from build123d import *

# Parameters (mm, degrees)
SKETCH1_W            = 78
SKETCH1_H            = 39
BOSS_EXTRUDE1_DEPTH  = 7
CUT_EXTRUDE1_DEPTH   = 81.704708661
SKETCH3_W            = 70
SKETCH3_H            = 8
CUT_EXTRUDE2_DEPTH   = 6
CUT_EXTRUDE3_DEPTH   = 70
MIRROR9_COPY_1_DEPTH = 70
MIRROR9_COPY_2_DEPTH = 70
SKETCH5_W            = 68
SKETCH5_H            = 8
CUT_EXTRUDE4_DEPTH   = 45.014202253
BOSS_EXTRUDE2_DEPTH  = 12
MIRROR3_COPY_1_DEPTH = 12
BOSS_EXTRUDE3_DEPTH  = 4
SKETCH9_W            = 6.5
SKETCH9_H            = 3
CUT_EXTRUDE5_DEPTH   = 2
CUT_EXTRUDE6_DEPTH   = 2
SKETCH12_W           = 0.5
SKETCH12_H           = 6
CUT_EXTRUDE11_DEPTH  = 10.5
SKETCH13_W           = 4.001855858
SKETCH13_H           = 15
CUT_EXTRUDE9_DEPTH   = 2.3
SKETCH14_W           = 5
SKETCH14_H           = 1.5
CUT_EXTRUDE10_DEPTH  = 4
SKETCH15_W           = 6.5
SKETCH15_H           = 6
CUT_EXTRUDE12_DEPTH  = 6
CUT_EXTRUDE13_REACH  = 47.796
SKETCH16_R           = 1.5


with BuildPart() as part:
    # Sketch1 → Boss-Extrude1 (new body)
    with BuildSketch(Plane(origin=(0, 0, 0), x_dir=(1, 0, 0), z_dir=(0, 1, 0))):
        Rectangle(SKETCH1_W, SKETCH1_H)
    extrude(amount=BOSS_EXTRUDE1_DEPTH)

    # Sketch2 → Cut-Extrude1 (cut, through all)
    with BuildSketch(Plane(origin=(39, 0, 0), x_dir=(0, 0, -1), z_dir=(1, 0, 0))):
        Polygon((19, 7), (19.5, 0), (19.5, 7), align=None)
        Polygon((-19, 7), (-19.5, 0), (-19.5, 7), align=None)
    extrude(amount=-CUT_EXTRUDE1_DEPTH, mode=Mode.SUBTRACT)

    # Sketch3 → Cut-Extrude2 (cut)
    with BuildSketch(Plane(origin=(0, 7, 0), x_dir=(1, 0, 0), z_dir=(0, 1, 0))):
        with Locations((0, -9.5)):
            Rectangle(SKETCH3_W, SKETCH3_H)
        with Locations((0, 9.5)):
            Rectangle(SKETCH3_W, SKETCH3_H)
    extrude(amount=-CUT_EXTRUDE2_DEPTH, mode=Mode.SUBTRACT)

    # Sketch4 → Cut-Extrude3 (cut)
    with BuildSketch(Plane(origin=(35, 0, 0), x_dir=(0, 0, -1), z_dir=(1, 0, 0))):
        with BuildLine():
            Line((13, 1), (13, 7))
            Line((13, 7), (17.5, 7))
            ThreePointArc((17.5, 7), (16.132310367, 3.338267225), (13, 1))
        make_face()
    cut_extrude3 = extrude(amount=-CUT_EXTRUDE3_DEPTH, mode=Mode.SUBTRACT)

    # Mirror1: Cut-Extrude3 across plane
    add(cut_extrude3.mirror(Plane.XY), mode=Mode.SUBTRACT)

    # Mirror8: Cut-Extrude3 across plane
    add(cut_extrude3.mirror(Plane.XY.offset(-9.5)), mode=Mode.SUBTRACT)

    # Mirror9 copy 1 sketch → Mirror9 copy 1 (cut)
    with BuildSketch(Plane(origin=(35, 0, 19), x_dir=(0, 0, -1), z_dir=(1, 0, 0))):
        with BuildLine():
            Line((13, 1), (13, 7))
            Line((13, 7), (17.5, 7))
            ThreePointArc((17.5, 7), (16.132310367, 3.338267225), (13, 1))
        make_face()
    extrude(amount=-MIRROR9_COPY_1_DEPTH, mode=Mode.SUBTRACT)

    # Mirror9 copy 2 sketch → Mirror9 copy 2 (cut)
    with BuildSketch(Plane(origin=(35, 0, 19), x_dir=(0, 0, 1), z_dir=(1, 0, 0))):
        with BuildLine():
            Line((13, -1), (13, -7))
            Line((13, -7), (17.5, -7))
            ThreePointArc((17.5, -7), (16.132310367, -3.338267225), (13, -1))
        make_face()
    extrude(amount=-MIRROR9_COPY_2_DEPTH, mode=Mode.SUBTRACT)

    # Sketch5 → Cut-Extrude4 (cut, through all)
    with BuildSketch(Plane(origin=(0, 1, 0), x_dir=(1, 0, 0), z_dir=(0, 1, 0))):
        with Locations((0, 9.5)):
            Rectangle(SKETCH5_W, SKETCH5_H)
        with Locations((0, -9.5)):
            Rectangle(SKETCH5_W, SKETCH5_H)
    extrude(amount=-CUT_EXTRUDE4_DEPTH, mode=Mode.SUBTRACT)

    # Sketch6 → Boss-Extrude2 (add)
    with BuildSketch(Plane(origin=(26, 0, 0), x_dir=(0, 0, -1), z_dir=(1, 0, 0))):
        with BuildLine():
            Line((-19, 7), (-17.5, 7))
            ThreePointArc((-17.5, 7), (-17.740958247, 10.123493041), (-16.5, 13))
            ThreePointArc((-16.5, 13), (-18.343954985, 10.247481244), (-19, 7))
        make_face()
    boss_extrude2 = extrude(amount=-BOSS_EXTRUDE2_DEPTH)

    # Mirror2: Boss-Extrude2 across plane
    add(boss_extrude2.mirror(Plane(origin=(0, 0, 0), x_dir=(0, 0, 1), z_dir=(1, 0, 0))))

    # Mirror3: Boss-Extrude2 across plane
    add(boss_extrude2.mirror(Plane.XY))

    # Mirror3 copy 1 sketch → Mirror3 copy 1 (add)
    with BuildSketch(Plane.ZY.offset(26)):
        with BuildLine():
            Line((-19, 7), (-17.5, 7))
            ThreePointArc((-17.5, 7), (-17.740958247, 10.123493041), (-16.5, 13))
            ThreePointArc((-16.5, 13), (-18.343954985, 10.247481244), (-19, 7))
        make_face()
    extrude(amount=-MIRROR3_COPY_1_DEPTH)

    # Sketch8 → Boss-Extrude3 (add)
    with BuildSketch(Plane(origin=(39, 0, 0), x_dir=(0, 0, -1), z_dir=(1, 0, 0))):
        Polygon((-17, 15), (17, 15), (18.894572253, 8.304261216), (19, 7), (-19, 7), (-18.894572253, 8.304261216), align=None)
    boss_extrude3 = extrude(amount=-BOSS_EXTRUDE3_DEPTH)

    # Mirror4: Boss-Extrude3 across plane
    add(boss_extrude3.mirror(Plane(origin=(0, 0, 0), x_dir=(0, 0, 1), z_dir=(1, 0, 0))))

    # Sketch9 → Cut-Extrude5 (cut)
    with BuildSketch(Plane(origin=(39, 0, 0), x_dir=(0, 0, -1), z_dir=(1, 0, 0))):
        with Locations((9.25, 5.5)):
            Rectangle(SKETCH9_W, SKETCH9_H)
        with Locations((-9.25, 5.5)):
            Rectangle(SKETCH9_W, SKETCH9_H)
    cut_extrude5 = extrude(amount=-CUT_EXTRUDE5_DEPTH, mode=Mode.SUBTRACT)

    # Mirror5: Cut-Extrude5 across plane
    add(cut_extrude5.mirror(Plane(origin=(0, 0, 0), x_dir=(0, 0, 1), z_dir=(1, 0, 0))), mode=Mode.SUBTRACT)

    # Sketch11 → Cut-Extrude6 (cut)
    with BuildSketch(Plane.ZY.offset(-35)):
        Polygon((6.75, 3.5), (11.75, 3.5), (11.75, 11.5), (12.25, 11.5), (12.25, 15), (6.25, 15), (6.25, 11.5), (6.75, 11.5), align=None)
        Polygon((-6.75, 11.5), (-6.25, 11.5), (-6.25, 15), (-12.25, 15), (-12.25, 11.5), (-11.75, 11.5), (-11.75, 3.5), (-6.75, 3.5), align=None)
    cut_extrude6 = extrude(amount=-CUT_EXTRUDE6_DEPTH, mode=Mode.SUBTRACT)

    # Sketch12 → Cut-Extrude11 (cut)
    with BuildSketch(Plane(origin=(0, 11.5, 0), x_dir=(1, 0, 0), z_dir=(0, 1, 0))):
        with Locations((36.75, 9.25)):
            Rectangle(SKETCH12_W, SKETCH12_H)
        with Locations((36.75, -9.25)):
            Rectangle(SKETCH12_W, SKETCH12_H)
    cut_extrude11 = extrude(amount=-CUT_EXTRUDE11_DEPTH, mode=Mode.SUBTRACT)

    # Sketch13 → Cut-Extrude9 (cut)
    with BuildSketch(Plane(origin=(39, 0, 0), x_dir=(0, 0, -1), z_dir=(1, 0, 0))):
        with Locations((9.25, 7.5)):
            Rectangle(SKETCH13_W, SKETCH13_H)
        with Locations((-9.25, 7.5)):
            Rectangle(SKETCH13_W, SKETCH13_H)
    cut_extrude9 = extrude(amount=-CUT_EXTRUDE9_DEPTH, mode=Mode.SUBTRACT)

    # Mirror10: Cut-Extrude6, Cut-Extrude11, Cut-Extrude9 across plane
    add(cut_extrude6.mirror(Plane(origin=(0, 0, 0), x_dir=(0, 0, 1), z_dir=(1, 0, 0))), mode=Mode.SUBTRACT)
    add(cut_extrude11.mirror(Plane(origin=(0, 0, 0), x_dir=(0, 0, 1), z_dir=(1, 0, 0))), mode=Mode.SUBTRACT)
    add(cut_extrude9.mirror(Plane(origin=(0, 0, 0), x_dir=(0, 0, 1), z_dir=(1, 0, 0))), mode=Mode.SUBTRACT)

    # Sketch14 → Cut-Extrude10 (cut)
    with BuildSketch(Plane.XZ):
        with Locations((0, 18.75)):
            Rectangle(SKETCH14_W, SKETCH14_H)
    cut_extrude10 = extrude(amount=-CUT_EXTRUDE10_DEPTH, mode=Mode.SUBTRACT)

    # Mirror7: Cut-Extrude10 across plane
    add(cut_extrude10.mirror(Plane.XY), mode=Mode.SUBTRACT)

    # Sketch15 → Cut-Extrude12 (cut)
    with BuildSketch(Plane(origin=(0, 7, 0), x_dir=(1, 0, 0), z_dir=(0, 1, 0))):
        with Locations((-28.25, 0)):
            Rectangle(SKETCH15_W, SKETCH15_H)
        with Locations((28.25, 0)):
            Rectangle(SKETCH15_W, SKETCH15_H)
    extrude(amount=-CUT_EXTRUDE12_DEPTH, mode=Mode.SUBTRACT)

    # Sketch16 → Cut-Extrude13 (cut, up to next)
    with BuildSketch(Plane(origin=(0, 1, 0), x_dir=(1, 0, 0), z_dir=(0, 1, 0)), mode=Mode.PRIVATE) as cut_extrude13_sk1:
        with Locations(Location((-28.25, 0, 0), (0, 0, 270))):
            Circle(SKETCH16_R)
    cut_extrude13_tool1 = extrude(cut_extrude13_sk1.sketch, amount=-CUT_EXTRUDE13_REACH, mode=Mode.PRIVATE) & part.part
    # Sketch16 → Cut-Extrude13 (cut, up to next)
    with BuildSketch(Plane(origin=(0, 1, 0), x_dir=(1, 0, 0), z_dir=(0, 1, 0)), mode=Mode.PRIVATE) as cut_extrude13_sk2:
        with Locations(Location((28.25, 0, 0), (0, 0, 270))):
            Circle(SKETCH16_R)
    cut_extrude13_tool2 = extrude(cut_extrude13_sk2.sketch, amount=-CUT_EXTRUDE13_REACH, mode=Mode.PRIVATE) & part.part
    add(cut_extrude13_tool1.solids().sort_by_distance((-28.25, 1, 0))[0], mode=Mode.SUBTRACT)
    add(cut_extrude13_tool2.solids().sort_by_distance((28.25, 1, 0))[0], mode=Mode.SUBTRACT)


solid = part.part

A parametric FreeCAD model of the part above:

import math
import FreeCAD as App
import Part
import Sketcher
from FreeCAD import Vector


def add_polygon(sketch, points):
    """Adds a closed chain of lines whose ends are joined by coincident constraints."""
    first, n = sketch.GeometryCount, len(points)
    for a, b in zip(points, points[1:] + points[:1]):
        sketch.addGeometry(Part.LineSegment(App.Vector(*a, 0), App.Vector(*b, 0)), False)
    for i in range(n):
        sketch.addConstraint(Sketcher.Constraint("Coincident", first + i, 2, first + (i + 1) % n, 1))

doc = App.newDocument("Part")
body = doc.addObject("PartDesign::Body", "Body")

# Sketch on XZ plane
sketch1 = body.newObject("Sketcher::SketchObject", "Sketch")
sketch1.AttachmentSupport = (doc.getObject("XZ_Plane"), [""])
sketch1.MapMode = "FlatFace"
add_polygon(sketch1, [(-39, -20), (-39, 20), (39, 20), (39, -20)])  # lines 0-3
sketch1.addConstraint([
    Sketcher.Constraint("Vertical", 0),
    Sketcher.Constraint("Horizontal", 1),
    Sketcher.Constraint("Vertical", 2),
    Sketcher.Constraint("Horizontal", 3),
    Sketcher.Constraint("Symmetric", 0, 2, 2, 2, -1, 1),
    Sketcher.Constraint("DistanceX", 1, 1, 1, 2, 78.0),
    Sketcher.Constraint("DistanceY", 0, 1, 0, 2, 39.0),
])
pad1 = body.newObject("PartDesign::Pad", "Pad")
pad1.Profile = sketch1
pad1.Length = 7
pad1.Reversed = True

# Sketch on YZ plane
sketch2 = body.newObject("Sketcher::SketchObject", "Sketch001")
sketch2.AttachmentSupport = (doc.getObject("YZ_Plane"), [""])
sketch2.MapMode = "FlatFace"
sketch2.AttachmentOffset = App.Placement(Vector(0, 0, 39), App.Rotation())
add_polygon(sketch2, [(7, -19), (0, -19.5), (7, -19.5)])  # lines 0-2
add_polygon(sketch2, [(0, 19.5), (7, 19), (7, 19.5)])  # lines 3-5
sketch2.addConstraint([
    Sketcher.Constraint("Horizontal", 1),
    Sketcher.Constraint("Vertical", 2),
    Sketcher.Constraint("Vertical", 4),
    Sketcher.Constraint("Horizontal", 5),
    Sketcher.Constraint("Symmetric", 0, 2, 5, 2, -1, 1),
    Sketcher.Constraint("Symmetric", 2, 2, 3, 2, -1),
    Sketcher.Constraint("PointOnObject", 0, 2, -2),
    Sketcher.Constraint("DistanceX", 1, 1, 1, 2, 7.0),
    Sketcher.Constraint("DistanceY", 2, 1, 2, 2, 0.5),
    Sketcher.Constraint("DistanceY", 2, 2, -1, 1, 19.0),
])
pocket1 = body.newObject("PartDesign::Pocket", "Pocket")
pocket1.Profile = sketch2
pocket1.Type = "ThroughAll"

# Sketch on XZ plane
sketch3 = body.newObject("Sketcher::SketchObject", "Sketch002")
sketch3.AttachmentSupport = (doc.getObject("XZ_Plane"), [""])
sketch3.MapMode = "FlatFace"
sketch3.AttachmentOffset = App.Placement(Vector(0, 0, -7), App.Rotation())
add_polygon(sketch3, [(-35, 6), (-35, 14), (35, 14), (35, 6)])  # lines 0-3
add_polygon(sketch3, [(-35, -14), (-35, -6), (35, -6), (35, -14)])  # lines 4-7
sketch3.addConstraint([
    Sketcher.Constraint("Vertical", 0),
    Sketcher.Constraint("Horizontal", 1),
    Sketcher.Constraint("Vertical", 2),
    Sketcher.Constraint("Horizontal", 3),
    Sketcher.Constraint("Vertical", 4),
    Sketcher.Constraint("Horizontal", 5),
    Sketcher.Constraint("Vertical", 6),
    Sketcher.Constraint("Horizontal", 7),
    Sketcher.Constraint("Symmetric", 2, 2, 4, 2, -1, 1),
    Sketcher.Constraint("Symmetric", 0, 2, 6, 2, -1, 1),
    Sketcher.Constraint("Vertical", 3, 2, 4, 2),
    Sketcher.Constraint("DistanceX", 1, 1, 1, 2, 70.0),
    Sketcher.Constraint("DistanceY", 0, 1, 0, 2, 8.0),
    Sketcher.Constraint("DistanceY", 4, 2, 3, 2, 11.0),
])
pocket2 = body.newObject("PartDesign::Pocket", "Pocket001")
pocket2.Profile = sketch3
pocket2.Length = 6
pocket2.Reversed = True

# Sketch on YZ plane
sketch4 = body.newObject("Sketcher::SketchObject", "Sketch003")
sketch4.AttachmentSupport = (doc.getObject("YZ_Plane"), [""])
sketch4.MapMode = "FlatFace"
sketch4.AttachmentOffset = App.Placement(Vector(0, 0, 35), App.Rotation())
sketch4.addGeometry([
    Part.LineSegment(Vector(7, -13, 0), Vector(1, -13, 0)),
    Part.ArcOfCircle(Part.Circle(Vector(7.5, -10.6, 0), Vector(0, 0, 1), 6.9), math.radians(-160), math.radians(-94)),
    Part.LineSegment(Vector(7, -17.5, 0), Vector(7, -13, 0)),
], False)
sketch4.addConstraint([
    Sketcher.Constraint("Coincident", 0, 2, 1, 1),
    Sketcher.Constraint("Coincident", 1, 2, 2, 1),
    Sketcher.Constraint("Coincident", 2, 2, 0, 1),
    Sketcher.Constraint("Horizontal", 0),
    Sketcher.Constraint("Vertical", 2),
    Sketcher.Constraint("DistanceX", 0, 2, 0, 1, 6.0),
    Sketcher.Constraint("DistanceY", 2, 1, 2, 2, 4.5),
    Sketcher.Constraint("DistanceX", -1, 1, 0, 2, 1.0),
    Sketcher.Constraint("DistanceY", 0, 2, -1, 1, 13.0),
    Sketcher.Constraint("Radius", 1, 6.926752),
])
pocket3 = body.newObject("PartDesign::Pocket", "Pocket002")
pocket3.Profile = sketch4
pocket3.Length = 70
doc.recompute()

mirrored = body.newObject("PartDesign::Mirrored", "Mirrored")
mirrored.Originals = [pocket3]
mirrored.MirrorPlane = (doc.getObject("XY_Plane"), [""])
body.Tip = mirrored
doc.recompute()

datumplane = body.newObject("PartDesign::Plane", "DatumPlane")
datumplane.AttachmentSupport = (doc.getObject("XY_Plane"), [""])
datumplane.MapMode = "FlatFace"
datumplane.AttachmentOffset = App.Placement(Vector(0, 0, -9.5), App.Rotation())
mirrored2 = body.newObject("PartDesign::Mirrored", "Mirrored001")
mirrored2.Originals = [pocket3]
mirrored2.MirrorPlane = (datumplane, [""])
body.Tip = mirrored2

# Sketch on YZ plane
sketch5 = body.newObject("Sketcher::SketchObject", "Sketch004")
sketch5.AttachmentSupport = (doc.getObject("YZ_Plane"), [""])
sketch5.MapMode = "FlatFace"
sketch5.AttachmentOffset = App.Placement(Vector(0, 0, 35), App.Rotation())
sketch5.addGeometry([
    Part.LineSegment(Vector(7, 6, 0), Vector(1, 6, 0)),
    Part.ArcOfCircle(Part.Circle(Vector(7.5, 8.4, 0), Vector(0, 0, 1), 6.9), math.radians(-160), math.radians(-94)),
    Part.LineSegment(Vector(7, 1.5, 0), Vector(7, 6, 0)),
], False)
sketch5.addConstraint([
    Sketcher.Constraint("Coincident", 0, 2, 1, 1),
    Sketcher.Constraint("Coincident", 1, 2, 2, 1),
    Sketcher.Constraint("Coincident", 2, 2, 0, 1),
    Sketcher.Constraint("Horizontal", 0),
    Sketcher.Constraint("Vertical", 2),
    Sketcher.Constraint("DistanceX", 0, 2, 0, 1, 6.0),
    Sketcher.Constraint("DistanceY", 2, 1, 2, 2, 4.5),
    Sketcher.Constraint("DistanceX", -1, 1, 0, 2, 1.0),
    Sketcher.Constraint("DistanceY", -1, 1, 0, 2, 6.0),
    Sketcher.Constraint("Radius", 1, 6.926752),
])
pocket4 = body.newObject("PartDesign::Pocket", "Pocket003")
pocket4.Profile = sketch5
pocket4.Length = 70

# Sketch on YZ plane
sketch6 = body.newObject("Sketcher::SketchObject", "Sketch005")
sketch6.AttachmentSupport = (doc.getObject("YZ_Plane"), [""])
sketch6.MapMode = "FlatFace"
sketch6.AttachmentOffset = App.Placement(Vector(0, 0, 35), App.Rotation())
sketch6.addGeometry([
    Part.LineSegment(Vector(1, 32, 0), Vector(7, 32, 0)),
    Part.LineSegment(Vector(7, 32, 0), Vector(7, 36.5, 0)),
    Part.ArcOfCircle(Part.Circle(Vector(7.5, 29.6, 0), Vector(0, 0, 1), 6.9), math.radians(94), math.radians(160)),
], False)
sketch6.addConstraint([
    Sketcher.Constraint("Coincident", 0, 2, 1, 1),
    Sketcher.Constraint("Coincident", 1, 2, 2, 1),
    Sketcher.Constraint("Coincident", 2, 2, 0, 1),
    Sketcher.Constraint("Horizontal", 0),
    Sketcher.Constraint("Vertical", 1),
    Sketcher.Constraint("DistanceX", 0, 1, 0, 2, 6.0),
    Sketcher.Constraint("DistanceY", 1, 1, 1, 2, 4.5),
    Sketcher.Constraint("DistanceX", -1, 1, 0, 2, 7.0),
    Sketcher.Constraint("DistanceY", -1, 1, 0, 2, 32.0),
    Sketcher.Constraint("Radius", 2, 6.926752),
])
pocket5 = body.newObject("PartDesign::Pocket", "Pocket004")
pocket5.Profile = sketch6
pocket5.Length = 70

# Sketch on XZ plane
sketch7 = body.newObject("Sketcher::SketchObject", "Sketch006")
sketch7.AttachmentSupport = (doc.getObject("XZ_Plane"), [""])
sketch7.MapMode = "FlatFace"
sketch7.AttachmentOffset = App.Placement(Vector(0, 0, -1), App.Rotation())
add_polygon(sketch7, [(-34, -14), (-34, -6), (34, -6), (34, -14)])  # lines 0-3
add_polygon(sketch7, [(-34, 6), (-34, 14), (34, 14), (34, 6)])  # lines 4-7
sketch7.addConstraint([
    Sketcher.Constraint("Vertical", 0),
    Sketcher.Constraint("Horizontal", 1),
    Sketcher.Constraint("Vertical", 2),
    Sketcher.Constraint("Horizontal", 3),
    Sketcher.Constraint("Vertical", 4),
    Sketcher.Constraint("Horizontal", 5),
    Sketcher.Constraint("Vertical", 6),
    Sketcher.Constraint("Horizontal", 7),
    Sketcher.Constraint("Symmetric", 2, 2, 4, 2, -1, 1),
    Sketcher.Constraint("Symmetric", 0, 2, 6, 2, -1, 1),
    Sketcher.Constraint("Vertical", 3, 2, 4, 2),
    Sketcher.Constraint("DistanceX", 1, 1, 1, 2, 68.0),
    Sketcher.Constraint("DistanceY", 0, 1, 0, 2, 8.0),
    Sketcher.Constraint("DistanceY", 0, 2, 4, 2, 19.0),
])
pocket6 = body.newObject("PartDesign::Pocket", "Pocket005")
pocket6.Profile = sketch7
pocket6.Type = "ThroughAll"
pocket6.Reversed = True

# Sketch on YZ plane
sketch8 = body.newObject("Sketcher::SketchObject", "Sketch007")
sketch8.AttachmentSupport = (doc.getObject("YZ_Plane"), [""])
sketch8.MapMode = "FlatFace"
sketch8.AttachmentOffset = App.Placement(Vector(0, 0, 26), App.Rotation())
sketch8.addGeometry([
    Part.LineSegment(Vector(7, 19, 0), Vector(7, 17.5, 0)),
    Part.ArcOfCircle(Part.Circle(Vector(9, 11.3, 0), Vector(0, 0, 1), 6.5), math.radians(53), math.radians(108)),
    Part.ArcOfCircle(Part.Circle(Vector(7, 10.5, 0), Vector(0, 0, 1), 8.5), math.radians(45), math.radians(90)),
], False)
sketch8.addConstraint([
    Sketcher.Constraint("Coincident", 0, 2, 1, 2),
    Sketcher.Constraint("Coincident", 1, 1, 2, 1),
    Sketcher.Constraint("Coincident", 2, 2, 0, 1),
    Sketcher.Constraint("Vertical", 0),
    Sketcher.Constraint("DistanceY", 0, 2, 0, 1, 1.5),
    Sketcher.Constraint("DistanceX", -1, 1, 0, 2, 7.0),
    Sketcher.Constraint("DistanceX", -1, 1, 1, 1, 13.0),
    Sketcher.Constraint("DistanceY", -1, 1, 2, 2, 19.0),
    Sketcher.Constraint("DistanceY", 1, 1, 0, 2, 1.0),
    Sketcher.Constraint("Radius", 1, 6.532579),
    Sketcher.Constraint("Radius", 2, 8.529418),
])
pad2 = body.newObject("PartDesign::Pad", "Pad001")
pad2.Profile = sketch8
pad2.Length = 12
pad2.Reversed = True
doc.recompute()

mirrored3 = body.newObject("PartDesign::Mirrored", "Mirrored002")
mirrored3.Originals = [pad2]
mirrored3.MirrorPlane = (doc.getObject("YZ_Plane"), [""])
body.Tip = mirrored3
doc.recompute()

mirrored4 = body.newObject("PartDesign::Mirrored", "Mirrored003")
mirrored4.Originals = [pad2]
mirrored4.MirrorPlane = (doc.getObject("XY_Plane"), [""])
body.Tip = mirrored4

# Sketch on YZ plane
sketch9 = body.newObject("Sketcher::SketchObject", "Sketch008")
sketch9.AttachmentSupport = (doc.getObject("YZ_Plane"), [""])
sketch9.MapMode = "FlatFace"
sketch9.AttachmentOffset = App.Placement(Vector(0, 0, -26), App.Rotation())
sketch9.addGeometry([
    Part.LineSegment(Vector(7, -19, 0), Vector(7, -17.5, 0)),
    Part.ArcOfCircle(Part.Circle(Vector(9, -11.3, 0), Vector(0, 0, 1), 6.5), math.radians(-108), math.radians(-53)),
    Part.ArcOfCircle(Part.Circle(Vector(7, -10.5, 0), Vector(0, 0, 1), 8.5), math.radians(-90), math.radians(-45)),
], False)
sketch9.addConstraint([
    Sketcher.Constraint("Coincident", 0, 2, 1, 1),
    Sketcher.Constraint("Coincident", 1, 2, 2, 2),
    Sketcher.Constraint("Coincident", 2, 1, 0, 1),
    Sketcher.Constraint("Vertical", 0),
    Sketcher.Constraint("DistanceY", 0, 1, 0, 2, 1.5),
    Sketcher.Constraint("DistanceX", -1, 1, 0, 2, 7.0),
    Sketcher.Constraint("DistanceX", -1, 1, 1, 2, 13.0),
    Sketcher.Constraint("DistanceY", 2, 1, -1, 1, 19.0),
    Sketcher.Constraint("DistanceY", 0, 2, 1, 2, 1.0),
    Sketcher.Constraint("Radius", 1, 6.532579),
    Sketcher.Constraint("Radius", 2, 8.529418),
])
pad3 = body.newObject("PartDesign::Pad", "Pad002")
pad3.Profile = sketch9
pad3.Length = 12

# Sketch on YZ plane
sketch10 = body.newObject("Sketcher::SketchObject", "Sketch009")
sketch10.AttachmentSupport = (doc.getObject("YZ_Plane"), [""])
sketch10.MapMode = "FlatFace"
sketch10.AttachmentOffset = App.Placement(Vector(0, 0, 39), App.Rotation())
add_polygon(sketch10, [(15, -17), (15, 17), (8.3, 18.9), (7, 19), (7, -19), (8.3, -18.9)])  # lines 0-5
sketch10.addConstraint([
    Sketcher.Constraint("Vertical", 0),
    Sketcher.Constraint("Vertical", 3),
    Sketcher.Constraint("Symmetric", 1, 2, 4, 2, -1),
    Sketcher.Constraint("Equal", 2, 4),
    Sketcher.Constraint("Equal", 1, 5),
    Sketcher.Constraint("DistanceY", 0, 1, 0, 2, 34.0),
    Sketcher.Constraint("DistanceY", 3, 2, 3, 1, 38.0),
    Sketcher.Constraint("DistanceX", -1, 1, 0, 2, 15.0),
    Sketcher.Constraint("DistanceX", -1, 1, 2, 2, 7.0),
    Sketcher.Constraint("DistanceX", -1, 1, 1, 2, 8.304261),
    Sketcher.Constraint("Distance", 1, 6.958615),
])
pad4 = body.newObject("PartDesign::Pad", "Pad003")
pad4.Profile = sketch10
pad4.Length = 4
pad4.Reversed = True
doc.recompute()

mirrored5 = body.newObject("PartDesign::Mirrored", "Mirrored004")
mirrored5.Originals = [pad4]
mirrored5.MirrorPlane = (doc.getObject("YZ_Plane"), [""])
body.Tip = mirrored5

# Sketch on YZ plane
sketch11 = body.newObject("Sketcher::SketchObject", "Sketch010")
sketch11.AttachmentSupport = (doc.getObject("YZ_Plane"), [""])
sketch11.MapMode = "FlatFace"
sketch11.AttachmentOffset = App.Placement(Vector(0, 0, 39), App.Rotation())
add_polygon(sketch11, [(7, -6), (4, -6), (4, -12.5), (7, -12.5)])  # lines 0-3
add_polygon(sketch11, [(7, 12.5), (4, 12.5), (4, 6), (7, 6)])  # lines 4-7
sketch11.addConstraint([
    Sketcher.Constraint("Horizontal", 0),
    Sketcher.Constraint("Vertical", 1),
    Sketcher.Constraint("Horizontal", 2),
    Sketcher.Constraint("Vertical", 3),
    Sketcher.Constraint("Horizontal", 4),
    Sketcher.Constraint("Vertical", 5),
    Sketcher.Constraint("Horizontal", 6),
    Sketcher.Constraint("Vertical", 7),
    Sketcher.Constraint("Symmetric", 1, 2, 4, 2, -1),
    Sketcher.Constraint("Symmetric", 3, 2, 6, 2, -1),
    Sketcher.Constraint("DistanceX", 0, 2, 0, 1, 3.0),
    Sketcher.Constraint("DistanceY", 1, 2, 1, 1, 6.5),
    Sketcher.Constraint("DistanceX", -1, 1, 0, 2, 4.0),
    Sketcher.Constraint("DistanceY", 0, 2, -1, 1, 6.0),
])
pocket7 = body.newObject("PartDesign::Pocket", "Pocket006")
pocket7.Profile = sketch11
pocket7.Length = 2
doc.recompute()

mirrored6 = body.newObject("PartDesign::Mirrored", "Mirrored005")
mirrored6.Originals = [pocket7]
mirrored6.MirrorPlane = (doc.getObject("YZ_Plane"), [""])
body.Tip = mirrored6

# Sketch on YZ plane
sketch12 = body.newObject("Sketcher::SketchObject", "Sketch011")
sketch12.AttachmentSupport = (doc.getObject("YZ_Plane"), [""])
sketch12.MapMode = "FlatFace"
sketch12.AttachmentOffset = App.Placement(Vector(0, 0, 35), App.Rotation())
add_polygon(sketch12, [(3.5, 6.8), (3.5, 11.8), (11.5, 11.8), (11.5, 12.2), (15, 12.2), (15, 6.2), (11.5, 6.2), (11.5, 6.8)])  # lines 0-7
add_polygon(sketch12, [(11.5, -6.8), (11.5, -6.2), (15, -6.2), (15, -12.2), (11.5, -12.2), (11.5, -11.8), (3.5, -11.8), (3.5, -6.8)])  # lines 8-15
sketch12.addConstraint([
    Sketcher.Constraint("Vertical", 0),
    Sketcher.Constraint("Horizontal", 1),
    Sketcher.Constraint("Vertical", 2),
    Sketcher.Constraint("Horizontal", 3),
    Sketcher.Constraint("Vertical", 4),
    Sketcher.Constraint("Horizontal", 5),
    Sketcher.Constraint("Vertical", 6),
    Sketcher.Constraint("Horizontal", 7),
    Sketcher.Constraint("Vertical", 8),
    Sketcher.Constraint("Horizontal", 9),
    Sketcher.Constraint("Vertical", 10),
    Sketcher.Constraint("Horizontal", 11),
    Sketcher.Constraint("Vertical", 12),
    Sketcher.Constraint("Horizontal", 13),
    Sketcher.Constraint("Vertical", 14),
    Sketcher.Constraint("Horizontal", 15),
    Sketcher.Constraint("Symmetric", 5, 2, 8, 2, -1),
    Sketcher.Constraint("Symmetric", 3, 2, 10, 2, -1),
    Sketcher.Constraint("Symmetric", 1, 2, 12, 2, -1),
    Sketcher.Constraint("Symmetric", 7, 2, 14, 2, -1),
    Sketcher.Constraint("Vertical", 2, 2, 5, 2),
    Sketcher.Constraint("Equal", 2, 6),
    Sketcher.Constraint("DistanceX", 1, 1, 1, 2, 8.0),
    Sketcher.Constraint("DistanceY", 0, 1, 0, 2, 5.0),
    Sketcher.Constraint("DistanceY", 4, 2, 4, 1, 6.0),
    Sketcher.Constraint("DistanceX", 3, 1, 3, 2, 3.5),
    Sketcher.Constraint("DistanceX", -1, 1, 3, 2, 15.0),
    Sketcher.Constraint("DistanceY", 8, 2, 6, 2, 13.0),
])
pocket8 = body.newObject("PartDesign::Pocket", "Pocket007")
pocket8.Profile = sketch12
pocket8.Length = 2
pocket8.Reversed = True

# Sketch on XZ plane
sketch13 = body.newObject("Sketcher::SketchObject", "Sketch012")
sketch13.AttachmentSupport = (doc.getObject("XZ_Plane"), [""])
sketch13.MapMode = "FlatFace"
sketch13.AttachmentOffset = App.Placement(Vector(0, 0, -11.5), App.Rotation())
add_polygon(sketch13, [(36.5, -12.2), (36.5, -6.2), (37, -6.2), (37, -12.2)])  # lines 0-3
add_polygon(sketch13, [(36.5, 6.2), (36.5, 12.2), (37, 12.2), (37, 6.2)])  # lines 4-7
sketch13.addConstraint([
    Sketcher.Constraint("Vertical", 0),
    Sketcher.Constraint("Horizontal", 1),
    Sketcher.Constraint("Vertical", 2),
    Sketcher.Constraint("Horizontal", 3),
    Sketcher.Constraint("Vertical", 4),
    Sketcher.Constraint("Horizontal", 5),
    Sketcher.Constraint("Vertical", 6),
    Sketcher.Constraint("Horizontal", 7),
    Sketcher.Constraint("Symmetric", 3, 2, 4, 2, -1),
    Sketcher.Constraint("Symmetric", 1, 2, 6, 2, -1),
    Sketcher.Constraint("DistanceY", 0, 1, 0, 2, 6.0),
    Sketcher.Constraint("DistanceX", 1, 1, 1, 2, 0.5),
    Sketcher.Constraint("DistanceX", -1, 1, 1, 2, 37.0),
    Sketcher.Constraint("DistanceY", 0, 2, 4, 2, 18.5),
])
pocket9 = body.newObject("PartDesign::Pocket", "Pocket008")
pocket9.Profile = sketch13
pocket9.Length = 10.5
pocket9.Reversed = True

# Sketch on YZ plane
sketch14 = body.newObject("Sketcher::SketchObject", "Sketch013")
sketch14.AttachmentSupport = (doc.getObject("YZ_Plane"), [""])
sketch14.MapMode = "FlatFace"
sketch14.AttachmentOffset = App.Placement(Vector(0, 0, 39), App.Rotation())
add_polygon(sketch14, [(15, -7.2), (0, -7.2), (0, -11.3), (15, -11.3)])  # lines 0-3
add_polygon(sketch14, [(15, 11.3), (0, 11.3), (0, 7.2), (15, 7.2)])  # lines 4-7
sketch14.addConstraint([
    Sketcher.Constraint("Horizontal", 0),
    Sketcher.Constraint("Vertical", 1),
    Sketcher.Constraint("Horizontal", 2),
    Sketcher.Constraint("Vertical", 3),
    Sketcher.Constraint("Horizontal", 4),
    Sketcher.Constraint("Vertical", 5),
    Sketcher.Constraint("Horizontal", 6),
    Sketcher.Constraint("Vertical", 7),
    Sketcher.Constraint("Symmetric", 1, 2, 4, 2, -1, 1),
    Sketcher.Constraint("Symmetric", 0, 2, 5, 2, -1),
    Sketcher.Constraint("Vertical", 3, 2, 6, 2),
    Sketcher.Constraint("DistanceX", 0, 2, 0, 1, 15.0),
    Sketcher.Constraint("DistanceY", 0, 2, 4, 2, 18.5),
    Sketcher.Constraint("DistanceY", 1, 2, 1, 1, 4.001856),
])
pocket10 = body.newObject("PartDesign::Pocket", "Pocket009")
pocket10.Profile = sketch14
pocket10.Length = 2.3
doc.recompute()

mirrored7 = body.newObject("PartDesign::Mirrored", "Mirrored006")
mirrored7.Originals = [pocket8, pocket9, pocket10]
mirrored7.MirrorPlane = (doc.getObject("YZ_Plane"), [""])
body.Tip = mirrored7

# Sketch on XZ plane
sketch15 = body.newObject("Sketcher::SketchObject", "Sketch014")
sketch15.AttachmentSupport = (doc.getObject("XZ_Plane"), [""])
sketch15.MapMode = "FlatFace"
add_polygon(sketch15, [(-2.5, 19.5), (-2.5, 18), (2.5, 18), (2.5, 19.5)])  # lines 0-3
sketch15.addConstraint([
    Sketcher.Constraint("Vertical", 0),
    Sketcher.Constraint("Horizontal", 1),
    Sketcher.Constraint("Vertical", 2),
    Sketcher.Constraint("Horizontal", 3),
    Sketcher.Constraint("DistanceX", 1, 1, 1, 2, 5.0),
    Sketcher.Constraint("DistanceY", 0, 2, 0, 1, 1.5),
    Sketcher.Constraint("DistanceY", -1, 1, 0, 2, 18.0),
    Sketcher.Constraint("DistanceX", 0, 2, -1, 1, 2.5),
])
pocket11 = body.newObject("PartDesign::Pocket", "Pocket010")
pocket11.Profile = sketch15
pocket11.Length = 4
doc.recompute()

mirrored8 = body.newObject("PartDesign::Mirrored", "Mirrored007")
mirrored8.Originals = [pocket11]
mirrored8.MirrorPlane = (doc.getObject("XY_Plane"), [""])
body.Tip = mirrored8

# Sketch on XZ plane
sketch16 = body.newObject("Sketcher::SketchObject", "Sketch015")
sketch16.AttachmentSupport = (doc.getObject("XZ_Plane"), [""])
sketch16.MapMode = "FlatFace"
sketch16.AttachmentOffset = App.Placement(Vector(0, 0, -7), App.Rotation())
add_polygon(sketch16, [(-32, -3), (-32, 3), (-25, 3), (-25, -3)])  # lines 0-3
add_polygon(sketch16, [(25, -3), (25, 3), (32, 3), (32, -3)])  # lines 4-7
sketch16.addConstraint([
    Sketcher.Constraint("Vertical", 0),
    Sketcher.Constraint("Horizontal", 1),
    Sketcher.Constraint("Vertical", 2),
    Sketcher.Constraint("Horizontal", 3),
    Sketcher.Constraint("Vertical", 4),
    Sketcher.Constraint("Horizontal", 5),
    Sketcher.Constraint("Vertical", 6),
    Sketcher.Constraint("Horizontal", 7),
    Sketcher.Constraint("Symmetric", 2, 2, 4, 2, -1, 1),
    Sketcher.Constraint("Symmetric", 0, 2, 6, 2, -1, 1),
    Sketcher.Constraint("Horizontal", 1, 2, 4, 2),
    Sketcher.Constraint("DistanceY", 0, 1, 0, 2, 6.0),
    Sketcher.Constraint("DistanceX", 1, 1, 1, 2, 6.5),
    Sketcher.Constraint("DistanceX", 1, 2, -1, 1, 25.0),
])
pocket12 = body.newObject("PartDesign::Pocket", "Pocket011")
pocket12.Profile = sketch16
pocket12.Length = 6
pocket12.Reversed = True

# Sketch on XZ plane
sketch17 = body.newObject("Sketcher::SketchObject", "Sketch016")
sketch17.AttachmentSupport = (doc.getObject("XZ_Plane"), [""])
sketch17.MapMode = "FlatFace"
sketch17.AttachmentOffset = App.Placement(Vector(0, 0, -1), App.Rotation())
sketch17.addGeometry(Part.Circle(Vector(-28.2, 0, 0), Vector(0, 0, 1), 1.5), False)
sketch17.addConstraint([
    Sketcher.Constraint("PointOnObject", 0, 3, -1),
    Sketcher.Constraint("Diameter", 0, 3.0),
    Sketcher.Constraint("DistanceX", 0, 3, -1, 1, 28.25),
])
pocket13 = body.newObject("PartDesign::Pocket", "Pocket012")
pocket13.Profile = sketch17
pocket13.Type = "UpToFirst"
pocket13.Reversed = True

# Sketch on XZ plane
sketch18 = body.newObject("Sketcher::SketchObject", "Sketch017")
sketch18.AttachmentSupport = (doc.getObject("XZ_Plane"), [""])
sketch18.MapMode = "FlatFace"
sketch18.AttachmentOffset = App.Placement(Vector(0, 0, -1), App.Rotation())
sketch18.addGeometry(Part.Circle(Vector(28.2, 0, 0), Vector(0, 0, 1), 1.5), False)
sketch18.addConstraint([
    Sketcher.Constraint("PointOnObject", 0, 3, -1),
    Sketcher.Constraint("Diameter", 0, 3.0),
    Sketcher.Constraint("DistanceX", -1, 1, 0, 3, 28.25),
])
pocket14 = body.newObject("PartDesign::Pocket", "Pocket013")
pocket14.Profile = sketch18
pocket14.Type = "UpToFirst"
pocket14.Reversed = True

doc.recompute()
